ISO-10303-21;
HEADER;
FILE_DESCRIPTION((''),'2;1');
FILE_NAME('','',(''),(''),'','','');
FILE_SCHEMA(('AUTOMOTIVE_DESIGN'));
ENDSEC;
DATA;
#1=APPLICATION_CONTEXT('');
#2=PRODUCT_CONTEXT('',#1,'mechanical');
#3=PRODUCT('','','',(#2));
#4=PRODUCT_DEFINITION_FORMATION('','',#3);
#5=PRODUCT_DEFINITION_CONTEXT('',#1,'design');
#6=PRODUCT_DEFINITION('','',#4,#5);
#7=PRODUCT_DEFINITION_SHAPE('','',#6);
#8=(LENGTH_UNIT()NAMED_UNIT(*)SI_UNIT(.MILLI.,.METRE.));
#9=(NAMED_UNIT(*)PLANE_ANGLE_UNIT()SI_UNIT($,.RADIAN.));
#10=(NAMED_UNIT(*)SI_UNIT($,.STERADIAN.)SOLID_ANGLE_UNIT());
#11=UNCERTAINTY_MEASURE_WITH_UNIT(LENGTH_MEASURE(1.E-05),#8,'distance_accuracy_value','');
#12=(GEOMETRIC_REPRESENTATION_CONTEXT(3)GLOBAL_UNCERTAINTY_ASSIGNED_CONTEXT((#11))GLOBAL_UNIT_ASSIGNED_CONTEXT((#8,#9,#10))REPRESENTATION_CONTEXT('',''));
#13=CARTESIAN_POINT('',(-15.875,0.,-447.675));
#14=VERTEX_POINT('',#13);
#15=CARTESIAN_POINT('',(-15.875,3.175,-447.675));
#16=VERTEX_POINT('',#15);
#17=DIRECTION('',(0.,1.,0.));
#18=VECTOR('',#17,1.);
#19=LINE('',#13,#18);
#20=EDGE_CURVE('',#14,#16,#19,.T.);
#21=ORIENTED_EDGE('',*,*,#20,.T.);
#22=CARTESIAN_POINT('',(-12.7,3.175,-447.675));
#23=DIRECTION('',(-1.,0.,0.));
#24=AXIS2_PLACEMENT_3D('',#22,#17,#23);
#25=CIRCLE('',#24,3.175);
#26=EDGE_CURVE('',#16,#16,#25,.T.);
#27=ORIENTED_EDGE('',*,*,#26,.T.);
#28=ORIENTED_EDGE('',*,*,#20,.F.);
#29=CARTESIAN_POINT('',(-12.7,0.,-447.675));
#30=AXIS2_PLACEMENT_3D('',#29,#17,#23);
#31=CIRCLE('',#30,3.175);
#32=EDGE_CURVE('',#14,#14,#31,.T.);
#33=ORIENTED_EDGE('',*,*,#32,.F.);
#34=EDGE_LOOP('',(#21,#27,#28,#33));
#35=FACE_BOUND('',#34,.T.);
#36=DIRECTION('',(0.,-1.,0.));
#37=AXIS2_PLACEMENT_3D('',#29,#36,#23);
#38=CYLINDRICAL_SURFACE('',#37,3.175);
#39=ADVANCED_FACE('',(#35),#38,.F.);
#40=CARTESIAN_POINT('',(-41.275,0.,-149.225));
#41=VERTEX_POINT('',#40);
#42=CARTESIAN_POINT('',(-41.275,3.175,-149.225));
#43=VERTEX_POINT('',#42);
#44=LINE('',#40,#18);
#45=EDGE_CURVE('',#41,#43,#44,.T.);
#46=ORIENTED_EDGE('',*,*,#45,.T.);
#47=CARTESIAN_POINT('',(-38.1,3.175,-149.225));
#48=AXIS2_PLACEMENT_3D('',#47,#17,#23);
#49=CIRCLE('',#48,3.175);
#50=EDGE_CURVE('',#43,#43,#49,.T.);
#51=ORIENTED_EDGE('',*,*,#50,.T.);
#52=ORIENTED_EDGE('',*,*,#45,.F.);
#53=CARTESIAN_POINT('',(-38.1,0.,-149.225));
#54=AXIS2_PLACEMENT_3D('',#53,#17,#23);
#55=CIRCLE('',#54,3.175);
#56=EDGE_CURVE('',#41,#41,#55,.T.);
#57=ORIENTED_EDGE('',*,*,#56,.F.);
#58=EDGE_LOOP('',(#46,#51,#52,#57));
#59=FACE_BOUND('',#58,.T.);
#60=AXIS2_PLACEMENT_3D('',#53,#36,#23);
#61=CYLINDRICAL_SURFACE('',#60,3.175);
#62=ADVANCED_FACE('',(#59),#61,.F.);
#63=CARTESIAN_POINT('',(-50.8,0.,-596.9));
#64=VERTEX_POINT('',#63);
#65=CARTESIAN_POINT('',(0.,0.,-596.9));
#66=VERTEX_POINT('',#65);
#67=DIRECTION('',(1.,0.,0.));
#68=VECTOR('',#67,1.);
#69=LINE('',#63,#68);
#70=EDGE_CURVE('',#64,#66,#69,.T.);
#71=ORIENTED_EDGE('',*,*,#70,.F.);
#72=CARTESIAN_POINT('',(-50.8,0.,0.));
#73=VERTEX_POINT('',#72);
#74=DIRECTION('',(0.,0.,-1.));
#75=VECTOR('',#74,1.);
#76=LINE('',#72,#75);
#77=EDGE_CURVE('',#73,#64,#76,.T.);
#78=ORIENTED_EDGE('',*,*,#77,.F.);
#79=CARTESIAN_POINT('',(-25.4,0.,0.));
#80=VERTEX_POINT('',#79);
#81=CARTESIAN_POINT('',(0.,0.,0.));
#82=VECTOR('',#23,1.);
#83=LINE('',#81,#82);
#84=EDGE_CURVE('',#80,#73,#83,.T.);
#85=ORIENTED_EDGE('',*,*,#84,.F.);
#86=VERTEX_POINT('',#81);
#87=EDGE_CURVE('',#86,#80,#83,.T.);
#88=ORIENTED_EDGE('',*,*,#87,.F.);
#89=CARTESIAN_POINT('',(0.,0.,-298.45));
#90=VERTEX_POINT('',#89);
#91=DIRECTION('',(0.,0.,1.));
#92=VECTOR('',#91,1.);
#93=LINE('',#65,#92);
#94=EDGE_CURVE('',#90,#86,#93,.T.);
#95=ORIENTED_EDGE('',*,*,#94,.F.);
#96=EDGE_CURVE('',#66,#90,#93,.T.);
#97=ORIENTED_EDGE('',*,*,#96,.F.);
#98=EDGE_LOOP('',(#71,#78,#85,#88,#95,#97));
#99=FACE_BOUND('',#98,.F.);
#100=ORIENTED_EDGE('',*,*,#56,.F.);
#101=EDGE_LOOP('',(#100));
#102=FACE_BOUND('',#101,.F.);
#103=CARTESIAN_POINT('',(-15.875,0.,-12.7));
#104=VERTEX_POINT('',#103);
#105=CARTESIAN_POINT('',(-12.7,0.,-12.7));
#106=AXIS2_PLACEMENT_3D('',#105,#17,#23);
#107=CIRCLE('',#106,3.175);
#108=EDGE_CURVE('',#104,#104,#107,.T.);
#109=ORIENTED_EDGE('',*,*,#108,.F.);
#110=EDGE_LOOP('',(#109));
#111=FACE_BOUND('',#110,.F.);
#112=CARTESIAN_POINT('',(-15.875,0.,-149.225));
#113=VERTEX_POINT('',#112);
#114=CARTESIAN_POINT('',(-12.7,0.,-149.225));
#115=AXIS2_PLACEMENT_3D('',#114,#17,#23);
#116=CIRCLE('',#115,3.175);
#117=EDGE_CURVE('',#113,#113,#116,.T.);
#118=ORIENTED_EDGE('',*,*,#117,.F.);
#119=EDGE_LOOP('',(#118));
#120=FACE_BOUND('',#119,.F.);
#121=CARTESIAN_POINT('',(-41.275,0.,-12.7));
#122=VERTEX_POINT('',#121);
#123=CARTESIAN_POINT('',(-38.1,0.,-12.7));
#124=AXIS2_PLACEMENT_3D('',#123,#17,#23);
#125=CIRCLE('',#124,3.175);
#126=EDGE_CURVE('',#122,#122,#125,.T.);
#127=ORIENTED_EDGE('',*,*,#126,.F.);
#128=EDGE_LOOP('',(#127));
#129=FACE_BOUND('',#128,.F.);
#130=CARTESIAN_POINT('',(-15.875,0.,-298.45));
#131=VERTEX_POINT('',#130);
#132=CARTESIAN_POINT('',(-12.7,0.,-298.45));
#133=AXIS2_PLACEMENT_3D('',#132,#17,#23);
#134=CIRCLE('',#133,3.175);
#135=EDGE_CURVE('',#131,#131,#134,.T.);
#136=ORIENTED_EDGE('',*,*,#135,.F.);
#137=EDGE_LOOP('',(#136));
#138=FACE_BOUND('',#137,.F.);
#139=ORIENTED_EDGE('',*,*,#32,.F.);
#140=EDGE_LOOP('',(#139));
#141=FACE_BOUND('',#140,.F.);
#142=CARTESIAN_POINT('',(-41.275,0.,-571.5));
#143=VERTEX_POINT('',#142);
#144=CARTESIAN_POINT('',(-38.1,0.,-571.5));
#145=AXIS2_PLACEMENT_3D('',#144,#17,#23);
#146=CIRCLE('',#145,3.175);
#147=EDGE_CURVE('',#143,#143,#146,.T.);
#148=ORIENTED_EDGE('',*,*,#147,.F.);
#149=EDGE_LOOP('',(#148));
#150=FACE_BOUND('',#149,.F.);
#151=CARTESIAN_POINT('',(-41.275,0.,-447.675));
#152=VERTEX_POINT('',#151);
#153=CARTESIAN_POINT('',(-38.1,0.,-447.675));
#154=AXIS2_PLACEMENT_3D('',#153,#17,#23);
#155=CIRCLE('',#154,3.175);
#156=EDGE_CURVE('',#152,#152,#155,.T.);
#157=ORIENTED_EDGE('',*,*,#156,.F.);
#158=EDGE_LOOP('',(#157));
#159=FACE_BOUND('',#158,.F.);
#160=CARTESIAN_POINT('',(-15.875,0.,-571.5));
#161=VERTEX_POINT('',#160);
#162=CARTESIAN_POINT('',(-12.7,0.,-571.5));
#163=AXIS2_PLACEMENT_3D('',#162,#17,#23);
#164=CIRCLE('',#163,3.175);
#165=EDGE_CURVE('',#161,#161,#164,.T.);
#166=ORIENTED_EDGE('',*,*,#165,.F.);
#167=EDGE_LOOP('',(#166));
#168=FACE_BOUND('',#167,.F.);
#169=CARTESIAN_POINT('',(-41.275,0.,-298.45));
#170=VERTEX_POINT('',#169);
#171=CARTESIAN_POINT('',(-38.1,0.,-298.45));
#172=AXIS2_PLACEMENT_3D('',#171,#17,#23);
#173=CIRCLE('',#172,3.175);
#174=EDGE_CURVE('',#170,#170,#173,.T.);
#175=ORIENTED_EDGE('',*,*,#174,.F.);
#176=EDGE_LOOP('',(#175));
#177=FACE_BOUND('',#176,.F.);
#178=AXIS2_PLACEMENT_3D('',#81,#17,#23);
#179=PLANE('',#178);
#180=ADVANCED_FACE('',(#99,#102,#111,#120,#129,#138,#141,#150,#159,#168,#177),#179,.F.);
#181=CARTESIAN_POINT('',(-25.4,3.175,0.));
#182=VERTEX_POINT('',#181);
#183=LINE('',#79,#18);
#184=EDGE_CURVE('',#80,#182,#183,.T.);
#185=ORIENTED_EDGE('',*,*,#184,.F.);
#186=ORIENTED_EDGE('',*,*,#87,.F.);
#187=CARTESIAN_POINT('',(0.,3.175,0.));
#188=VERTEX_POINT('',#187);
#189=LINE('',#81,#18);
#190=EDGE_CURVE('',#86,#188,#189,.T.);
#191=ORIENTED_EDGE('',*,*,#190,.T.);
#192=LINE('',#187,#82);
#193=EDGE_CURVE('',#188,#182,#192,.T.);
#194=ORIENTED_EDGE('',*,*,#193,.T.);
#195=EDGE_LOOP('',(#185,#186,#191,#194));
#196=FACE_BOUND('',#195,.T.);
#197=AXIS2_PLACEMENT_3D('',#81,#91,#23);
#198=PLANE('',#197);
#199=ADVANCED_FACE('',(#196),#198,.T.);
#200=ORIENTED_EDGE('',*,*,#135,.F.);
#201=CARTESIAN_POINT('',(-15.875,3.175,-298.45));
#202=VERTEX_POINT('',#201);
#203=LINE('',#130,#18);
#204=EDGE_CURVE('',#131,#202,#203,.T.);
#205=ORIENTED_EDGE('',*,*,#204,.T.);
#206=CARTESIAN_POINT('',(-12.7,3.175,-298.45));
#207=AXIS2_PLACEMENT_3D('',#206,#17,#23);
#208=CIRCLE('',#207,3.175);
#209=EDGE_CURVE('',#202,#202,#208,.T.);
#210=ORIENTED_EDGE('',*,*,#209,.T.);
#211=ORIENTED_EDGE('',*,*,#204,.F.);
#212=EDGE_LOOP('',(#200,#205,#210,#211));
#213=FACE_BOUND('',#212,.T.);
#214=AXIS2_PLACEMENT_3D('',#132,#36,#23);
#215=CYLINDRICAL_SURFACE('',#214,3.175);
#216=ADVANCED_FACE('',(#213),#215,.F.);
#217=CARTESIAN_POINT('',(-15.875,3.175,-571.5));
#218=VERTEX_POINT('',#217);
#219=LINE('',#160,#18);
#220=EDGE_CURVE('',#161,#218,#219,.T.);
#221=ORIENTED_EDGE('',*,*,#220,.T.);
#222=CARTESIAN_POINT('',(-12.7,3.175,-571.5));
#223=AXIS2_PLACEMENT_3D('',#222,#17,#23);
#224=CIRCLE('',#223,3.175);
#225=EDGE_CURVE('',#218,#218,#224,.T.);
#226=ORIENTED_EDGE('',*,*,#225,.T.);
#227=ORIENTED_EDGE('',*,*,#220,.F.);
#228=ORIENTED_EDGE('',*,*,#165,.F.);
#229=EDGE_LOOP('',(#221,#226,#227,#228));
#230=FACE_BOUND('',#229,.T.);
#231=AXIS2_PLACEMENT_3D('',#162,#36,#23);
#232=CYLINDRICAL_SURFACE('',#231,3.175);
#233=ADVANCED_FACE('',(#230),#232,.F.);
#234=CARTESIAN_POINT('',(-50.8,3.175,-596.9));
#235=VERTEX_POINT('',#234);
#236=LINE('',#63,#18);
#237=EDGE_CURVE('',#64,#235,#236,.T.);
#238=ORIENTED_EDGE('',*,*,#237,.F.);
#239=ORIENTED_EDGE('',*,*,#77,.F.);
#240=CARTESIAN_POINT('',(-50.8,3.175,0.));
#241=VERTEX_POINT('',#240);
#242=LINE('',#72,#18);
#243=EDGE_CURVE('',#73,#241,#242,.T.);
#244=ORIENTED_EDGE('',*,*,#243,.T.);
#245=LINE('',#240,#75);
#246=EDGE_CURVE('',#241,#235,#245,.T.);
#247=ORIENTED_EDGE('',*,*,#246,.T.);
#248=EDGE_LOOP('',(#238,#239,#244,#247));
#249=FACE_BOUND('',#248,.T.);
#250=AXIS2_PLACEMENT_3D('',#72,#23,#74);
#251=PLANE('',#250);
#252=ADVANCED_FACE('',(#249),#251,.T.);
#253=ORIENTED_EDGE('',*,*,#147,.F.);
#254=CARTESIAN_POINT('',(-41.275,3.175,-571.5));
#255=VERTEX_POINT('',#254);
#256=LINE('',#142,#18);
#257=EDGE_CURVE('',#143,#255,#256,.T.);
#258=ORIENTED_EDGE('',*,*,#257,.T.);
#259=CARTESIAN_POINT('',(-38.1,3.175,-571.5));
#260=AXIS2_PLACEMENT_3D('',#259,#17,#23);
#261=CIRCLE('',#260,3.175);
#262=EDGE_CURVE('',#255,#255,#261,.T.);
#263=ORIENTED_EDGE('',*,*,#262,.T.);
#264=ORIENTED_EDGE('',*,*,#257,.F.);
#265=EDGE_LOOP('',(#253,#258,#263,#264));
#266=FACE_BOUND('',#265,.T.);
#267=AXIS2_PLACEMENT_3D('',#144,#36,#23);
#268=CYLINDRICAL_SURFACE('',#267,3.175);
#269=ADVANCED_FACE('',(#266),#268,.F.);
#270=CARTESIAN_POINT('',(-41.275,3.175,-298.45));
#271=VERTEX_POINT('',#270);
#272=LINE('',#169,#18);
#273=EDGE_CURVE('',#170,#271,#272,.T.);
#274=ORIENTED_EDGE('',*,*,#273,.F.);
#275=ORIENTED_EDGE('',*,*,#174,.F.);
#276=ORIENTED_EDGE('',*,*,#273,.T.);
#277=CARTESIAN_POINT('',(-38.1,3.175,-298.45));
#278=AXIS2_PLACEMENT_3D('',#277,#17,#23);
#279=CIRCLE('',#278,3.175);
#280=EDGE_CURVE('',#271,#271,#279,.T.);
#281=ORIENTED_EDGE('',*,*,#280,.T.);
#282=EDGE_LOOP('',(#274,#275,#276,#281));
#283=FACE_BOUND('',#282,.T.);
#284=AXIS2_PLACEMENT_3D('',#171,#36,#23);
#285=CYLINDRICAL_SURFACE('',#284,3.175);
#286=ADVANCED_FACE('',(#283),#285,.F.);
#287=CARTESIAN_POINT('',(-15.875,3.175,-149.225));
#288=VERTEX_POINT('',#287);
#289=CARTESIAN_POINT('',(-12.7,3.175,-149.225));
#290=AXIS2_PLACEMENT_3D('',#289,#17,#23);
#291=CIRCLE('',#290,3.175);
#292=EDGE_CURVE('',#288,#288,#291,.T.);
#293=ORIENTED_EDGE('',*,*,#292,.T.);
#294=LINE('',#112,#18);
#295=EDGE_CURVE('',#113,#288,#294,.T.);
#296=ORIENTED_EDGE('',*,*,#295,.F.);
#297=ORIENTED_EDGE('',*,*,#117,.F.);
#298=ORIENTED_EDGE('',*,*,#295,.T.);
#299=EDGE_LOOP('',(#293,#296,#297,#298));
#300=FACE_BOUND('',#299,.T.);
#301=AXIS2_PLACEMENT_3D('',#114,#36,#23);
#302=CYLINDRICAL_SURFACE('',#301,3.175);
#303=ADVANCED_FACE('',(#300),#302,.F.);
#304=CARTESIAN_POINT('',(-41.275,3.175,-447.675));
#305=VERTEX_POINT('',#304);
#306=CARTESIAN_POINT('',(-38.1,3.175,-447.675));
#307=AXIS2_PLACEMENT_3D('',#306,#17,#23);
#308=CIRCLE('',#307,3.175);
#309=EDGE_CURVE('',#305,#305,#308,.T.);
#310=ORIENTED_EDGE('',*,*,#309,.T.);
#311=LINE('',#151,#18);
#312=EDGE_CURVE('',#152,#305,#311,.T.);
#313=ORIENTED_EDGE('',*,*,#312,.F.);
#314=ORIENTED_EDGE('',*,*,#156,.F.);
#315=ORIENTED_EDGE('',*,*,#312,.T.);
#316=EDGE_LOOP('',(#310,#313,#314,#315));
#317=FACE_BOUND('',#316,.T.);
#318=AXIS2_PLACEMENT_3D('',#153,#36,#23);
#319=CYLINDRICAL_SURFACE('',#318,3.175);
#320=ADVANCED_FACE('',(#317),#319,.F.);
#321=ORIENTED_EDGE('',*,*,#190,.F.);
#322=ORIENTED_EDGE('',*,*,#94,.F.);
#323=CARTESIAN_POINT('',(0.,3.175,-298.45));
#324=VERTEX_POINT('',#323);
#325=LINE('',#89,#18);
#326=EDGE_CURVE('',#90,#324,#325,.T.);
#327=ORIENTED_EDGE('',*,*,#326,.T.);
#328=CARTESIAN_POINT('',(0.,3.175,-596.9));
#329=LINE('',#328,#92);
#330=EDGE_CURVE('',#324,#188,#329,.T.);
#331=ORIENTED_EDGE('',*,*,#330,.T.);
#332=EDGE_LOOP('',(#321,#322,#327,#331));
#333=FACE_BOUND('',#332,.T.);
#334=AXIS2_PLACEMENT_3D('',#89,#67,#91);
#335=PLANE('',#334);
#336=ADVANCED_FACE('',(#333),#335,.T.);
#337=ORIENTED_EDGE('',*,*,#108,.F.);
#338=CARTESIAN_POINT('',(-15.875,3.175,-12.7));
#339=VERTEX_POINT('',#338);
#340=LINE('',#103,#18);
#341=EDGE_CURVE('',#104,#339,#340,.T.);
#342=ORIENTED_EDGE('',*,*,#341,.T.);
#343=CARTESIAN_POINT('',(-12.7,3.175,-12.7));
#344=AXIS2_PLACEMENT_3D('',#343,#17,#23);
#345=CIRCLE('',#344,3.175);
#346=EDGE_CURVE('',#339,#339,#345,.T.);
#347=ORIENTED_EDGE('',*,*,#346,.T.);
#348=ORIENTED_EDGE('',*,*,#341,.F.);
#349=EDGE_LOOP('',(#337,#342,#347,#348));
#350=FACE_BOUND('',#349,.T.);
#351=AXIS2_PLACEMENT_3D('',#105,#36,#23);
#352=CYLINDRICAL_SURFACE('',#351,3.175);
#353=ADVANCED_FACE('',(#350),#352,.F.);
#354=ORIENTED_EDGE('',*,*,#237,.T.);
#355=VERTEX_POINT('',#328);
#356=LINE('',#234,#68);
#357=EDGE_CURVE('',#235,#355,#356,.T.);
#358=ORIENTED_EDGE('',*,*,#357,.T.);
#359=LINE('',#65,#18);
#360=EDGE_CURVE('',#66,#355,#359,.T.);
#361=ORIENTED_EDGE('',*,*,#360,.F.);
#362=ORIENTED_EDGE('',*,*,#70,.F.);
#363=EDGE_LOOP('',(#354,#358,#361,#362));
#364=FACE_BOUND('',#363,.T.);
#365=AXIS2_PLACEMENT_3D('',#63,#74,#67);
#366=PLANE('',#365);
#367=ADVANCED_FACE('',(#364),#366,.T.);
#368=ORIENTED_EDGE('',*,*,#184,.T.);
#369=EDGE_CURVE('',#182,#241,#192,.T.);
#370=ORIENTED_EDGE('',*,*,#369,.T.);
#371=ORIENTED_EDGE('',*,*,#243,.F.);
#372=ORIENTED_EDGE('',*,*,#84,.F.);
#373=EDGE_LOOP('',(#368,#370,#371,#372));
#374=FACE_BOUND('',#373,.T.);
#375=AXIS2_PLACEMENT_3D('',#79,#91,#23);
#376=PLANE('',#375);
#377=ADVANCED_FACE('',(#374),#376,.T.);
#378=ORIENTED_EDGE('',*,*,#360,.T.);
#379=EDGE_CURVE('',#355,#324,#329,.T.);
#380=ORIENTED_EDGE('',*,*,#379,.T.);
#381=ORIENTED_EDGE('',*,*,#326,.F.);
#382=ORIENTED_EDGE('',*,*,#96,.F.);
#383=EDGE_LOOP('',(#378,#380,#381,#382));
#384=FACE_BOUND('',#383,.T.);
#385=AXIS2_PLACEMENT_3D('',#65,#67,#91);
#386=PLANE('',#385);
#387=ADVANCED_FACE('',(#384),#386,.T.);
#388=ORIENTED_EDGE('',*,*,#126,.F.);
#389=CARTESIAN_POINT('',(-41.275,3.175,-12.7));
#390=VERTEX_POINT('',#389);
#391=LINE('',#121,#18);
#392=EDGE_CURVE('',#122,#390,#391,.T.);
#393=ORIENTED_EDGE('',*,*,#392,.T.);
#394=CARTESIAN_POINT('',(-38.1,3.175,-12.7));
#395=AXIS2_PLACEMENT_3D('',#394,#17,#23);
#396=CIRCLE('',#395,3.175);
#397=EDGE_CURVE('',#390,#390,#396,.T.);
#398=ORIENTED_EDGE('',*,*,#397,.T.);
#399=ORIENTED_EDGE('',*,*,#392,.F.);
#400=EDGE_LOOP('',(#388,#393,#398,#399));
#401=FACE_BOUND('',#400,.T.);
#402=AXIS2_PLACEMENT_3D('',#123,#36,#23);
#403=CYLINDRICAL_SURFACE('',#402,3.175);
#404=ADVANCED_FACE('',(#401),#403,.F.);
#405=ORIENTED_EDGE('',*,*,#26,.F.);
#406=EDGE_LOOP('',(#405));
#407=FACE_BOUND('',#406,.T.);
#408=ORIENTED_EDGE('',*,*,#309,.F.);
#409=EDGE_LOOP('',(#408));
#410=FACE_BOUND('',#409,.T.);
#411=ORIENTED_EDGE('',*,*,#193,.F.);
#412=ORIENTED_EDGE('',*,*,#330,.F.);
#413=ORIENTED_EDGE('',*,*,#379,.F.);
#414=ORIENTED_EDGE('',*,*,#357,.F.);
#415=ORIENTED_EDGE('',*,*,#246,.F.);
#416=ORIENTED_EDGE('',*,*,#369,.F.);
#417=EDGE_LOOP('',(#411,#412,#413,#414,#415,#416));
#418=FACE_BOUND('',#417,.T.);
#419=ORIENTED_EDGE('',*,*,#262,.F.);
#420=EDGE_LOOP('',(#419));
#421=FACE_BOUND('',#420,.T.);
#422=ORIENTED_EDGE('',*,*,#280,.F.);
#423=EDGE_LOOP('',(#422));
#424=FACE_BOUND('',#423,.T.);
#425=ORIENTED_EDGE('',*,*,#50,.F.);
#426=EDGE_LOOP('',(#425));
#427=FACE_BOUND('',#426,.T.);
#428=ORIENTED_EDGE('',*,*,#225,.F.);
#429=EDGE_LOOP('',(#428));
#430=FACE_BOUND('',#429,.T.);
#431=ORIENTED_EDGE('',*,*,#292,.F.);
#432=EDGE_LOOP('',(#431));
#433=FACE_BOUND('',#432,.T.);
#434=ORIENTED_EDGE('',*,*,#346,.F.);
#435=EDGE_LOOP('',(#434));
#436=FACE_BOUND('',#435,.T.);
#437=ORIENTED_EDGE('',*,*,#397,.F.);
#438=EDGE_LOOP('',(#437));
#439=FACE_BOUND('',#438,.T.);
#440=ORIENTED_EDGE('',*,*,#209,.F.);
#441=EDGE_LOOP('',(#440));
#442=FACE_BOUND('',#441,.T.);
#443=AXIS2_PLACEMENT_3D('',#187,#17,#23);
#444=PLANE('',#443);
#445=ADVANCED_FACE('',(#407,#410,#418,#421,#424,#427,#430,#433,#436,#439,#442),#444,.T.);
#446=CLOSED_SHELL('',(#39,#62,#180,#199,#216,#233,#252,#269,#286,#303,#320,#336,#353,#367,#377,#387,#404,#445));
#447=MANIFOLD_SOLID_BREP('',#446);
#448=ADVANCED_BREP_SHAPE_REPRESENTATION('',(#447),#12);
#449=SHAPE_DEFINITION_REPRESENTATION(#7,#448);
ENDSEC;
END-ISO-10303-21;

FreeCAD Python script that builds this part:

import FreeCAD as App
import Part
import Sketcher
Q = App.Units.Quantity

doc = App.newDocument("Part")
body = doc.addObject("PartDesign::Body", "Body")

# Sketch on XZ plane
sketch1 = body.newObject("Sketcher::SketchObject", "Sketch")
sketch1.AttachmentSupport = (doc.getObject("XZ_Plane"), [""])
sketch1.MapMode = "FlatFace"
sketch1.addGeometry([
    Part.LineSegment(App.Vector(-50.8, 0, 0), App.Vector(0, 0, 0)),  # 0
    Part.LineSegment(App.Vector(0, 0, 0), App.Vector(0, -596.9, 0)),  # 1
    Part.LineSegment(App.Vector(0, -596.9, 0), App.Vector(-50.8, -596.9, 0)),  # 2
    Part.LineSegment(App.Vector(-50.8, -596.9, 0), App.Vector(-50.8, 0, 0)),  # 3
    Part.Circle(App.Vector(-12.7, -571.5, 0), App.Vector(0, 0, 1), 3.175),  # 4
    Part.Circle(App.Vector(-12.7, -447.675, 0), App.Vector(0, 0, 1), 3.175),  # 5
    Part.Circle(App.Vector(-38.1, -571.5, 0), App.Vector(0, 0, 1), 3.175),  # 6
    Part.Circle(App.Vector(-38.1, -447.675, 0), App.Vector(0, 0, 1), 3.175),  # 7
    Part.Circle(App.Vector(-12.7, -298.45, 0), App.Vector(0, 0, 1), 3.175),  # 8
    Part.Circle(App.Vector(-12.7, -149.225, 0), App.Vector(0, 0, 1), 3.175),  # 9
    Part.Circle(App.Vector(-12.7, -12.7, 0), App.Vector(0, 0, 1), 3.175),  # 10
    Part.Circle(App.Vector(-38.1, -298.45, 0), App.Vector(0, 0, 1), 3.175),  # 11
    Part.Circle(App.Vector(-38.1, -149.225, 0), App.Vector(0, 0, 1), 3.175),  # 12
    Part.Circle(App.Vector(-38.1, -12.7, 0), App.Vector(0, 0, 1), 3.175),  # 13
], False)
sketch1.addConstraint([
    Sketcher.Constraint("Coincident", 0, 2, 1, 1),
    Sketcher.Constraint("Coincident", 1, 2, 2, 1),
    Sketcher.Constraint("Coincident", 2, 2, 3, 1),
    Sketcher.Constraint("Coincident", 3, 2, 0, 1),
    Sketcher.Constraint("Horizontal", 0),
    Sketcher.Constraint("Vertical", 1),
    Sketcher.Constraint("Horizontal", 2),
    Sketcher.Constraint("Vertical", 3),
    Sketcher.Constraint("Coincident", 0, 2, -1, 1),
    Sketcher.Constraint("Equal", 4, 5),
    Sketcher.Constraint("Equal", 5, 6),
    Sketcher.Constraint("Equal", 6, 7),
    Sketcher.Constraint("Equal", 7, 8),
    Sketcher.Constraint("Equal", 8, 9),
    Sketcher.Constraint("Equal", 9, 10),
    Sketcher.Constraint("Equal", 10, 11),
    Sketcher.Constraint("Equal", 11, 12),
    Sketcher.Constraint("Equal", 12, 13),
    Sketcher.Constraint("Horizontal", 4, 3, 6, 3),
    Sketcher.Constraint("Horizontal", 5, 3, 7, 3),
    Sketcher.Constraint("Horizontal", 8, 3, 11, 3),
    Sketcher.Constraint("Horizontal", 9, 3, 12, 3),
    Sketcher.Constraint("Horizontal", 10, 3, 13, 3),
    Sketcher.Constraint("Vertical", 4, 3, 5, 3),
    Sketcher.Constraint("Vertical", 6, 3, 7, 3),
    Sketcher.Constraint("Vertical", 5, 3, 8, 3),
    Sketcher.Constraint("Vertical", 8, 3, 9, 3),
    Sketcher.Constraint("Vertical", 9, 3, 10, 3),
    Sketcher.Constraint("Vertical", 7, 3, 11, 3),
    Sketcher.Constraint("Vertical", 11, 3, 12, 3),
    Sketcher.Constraint("Vertical", 12, 3, 13, 3),
    Sketcher.Constraint("Diameter", 4, Q("0.25 in")),
    Sketcher.Constraint("DistanceX", 0, 1, 0, 2, Q("2 in")),
    Sketcher.Constraint("DistanceY", 1, 2, 1, 1, Q("23.5 in")),
    Sketcher.Constraint("DistanceX", 4, 3, -1, 1, Q("0.5 in")),
    Sketcher.Constraint("DistanceY", 10, 3, -1, 1, Q("0.5 in")),
    Sketcher.Constraint("DistanceX", 2, 2, 6, 3, Q("0.5 in")),
    Sketcher.Constraint("DistanceY", 8, 3, -1, 1, Q("11.75 in")),
    Sketcher.Constraint("DistanceY", 5, 3, 9, 3, Q("11.75 in")),
    Sketcher.Constraint("DistanceY", 9, 3, -1, 1, Q("5.875 in")),
    Sketcher.Constraint("DistanceY", 4, 3, 10, 3, Q("22 in")),
])
pad1 = body.newObject("PartDesign::Pad", "Pad")
pad1.Profile = sketch1
pad1.Length = Q("0.125 in")
pad1.Reversed = True

doc.recompute()
